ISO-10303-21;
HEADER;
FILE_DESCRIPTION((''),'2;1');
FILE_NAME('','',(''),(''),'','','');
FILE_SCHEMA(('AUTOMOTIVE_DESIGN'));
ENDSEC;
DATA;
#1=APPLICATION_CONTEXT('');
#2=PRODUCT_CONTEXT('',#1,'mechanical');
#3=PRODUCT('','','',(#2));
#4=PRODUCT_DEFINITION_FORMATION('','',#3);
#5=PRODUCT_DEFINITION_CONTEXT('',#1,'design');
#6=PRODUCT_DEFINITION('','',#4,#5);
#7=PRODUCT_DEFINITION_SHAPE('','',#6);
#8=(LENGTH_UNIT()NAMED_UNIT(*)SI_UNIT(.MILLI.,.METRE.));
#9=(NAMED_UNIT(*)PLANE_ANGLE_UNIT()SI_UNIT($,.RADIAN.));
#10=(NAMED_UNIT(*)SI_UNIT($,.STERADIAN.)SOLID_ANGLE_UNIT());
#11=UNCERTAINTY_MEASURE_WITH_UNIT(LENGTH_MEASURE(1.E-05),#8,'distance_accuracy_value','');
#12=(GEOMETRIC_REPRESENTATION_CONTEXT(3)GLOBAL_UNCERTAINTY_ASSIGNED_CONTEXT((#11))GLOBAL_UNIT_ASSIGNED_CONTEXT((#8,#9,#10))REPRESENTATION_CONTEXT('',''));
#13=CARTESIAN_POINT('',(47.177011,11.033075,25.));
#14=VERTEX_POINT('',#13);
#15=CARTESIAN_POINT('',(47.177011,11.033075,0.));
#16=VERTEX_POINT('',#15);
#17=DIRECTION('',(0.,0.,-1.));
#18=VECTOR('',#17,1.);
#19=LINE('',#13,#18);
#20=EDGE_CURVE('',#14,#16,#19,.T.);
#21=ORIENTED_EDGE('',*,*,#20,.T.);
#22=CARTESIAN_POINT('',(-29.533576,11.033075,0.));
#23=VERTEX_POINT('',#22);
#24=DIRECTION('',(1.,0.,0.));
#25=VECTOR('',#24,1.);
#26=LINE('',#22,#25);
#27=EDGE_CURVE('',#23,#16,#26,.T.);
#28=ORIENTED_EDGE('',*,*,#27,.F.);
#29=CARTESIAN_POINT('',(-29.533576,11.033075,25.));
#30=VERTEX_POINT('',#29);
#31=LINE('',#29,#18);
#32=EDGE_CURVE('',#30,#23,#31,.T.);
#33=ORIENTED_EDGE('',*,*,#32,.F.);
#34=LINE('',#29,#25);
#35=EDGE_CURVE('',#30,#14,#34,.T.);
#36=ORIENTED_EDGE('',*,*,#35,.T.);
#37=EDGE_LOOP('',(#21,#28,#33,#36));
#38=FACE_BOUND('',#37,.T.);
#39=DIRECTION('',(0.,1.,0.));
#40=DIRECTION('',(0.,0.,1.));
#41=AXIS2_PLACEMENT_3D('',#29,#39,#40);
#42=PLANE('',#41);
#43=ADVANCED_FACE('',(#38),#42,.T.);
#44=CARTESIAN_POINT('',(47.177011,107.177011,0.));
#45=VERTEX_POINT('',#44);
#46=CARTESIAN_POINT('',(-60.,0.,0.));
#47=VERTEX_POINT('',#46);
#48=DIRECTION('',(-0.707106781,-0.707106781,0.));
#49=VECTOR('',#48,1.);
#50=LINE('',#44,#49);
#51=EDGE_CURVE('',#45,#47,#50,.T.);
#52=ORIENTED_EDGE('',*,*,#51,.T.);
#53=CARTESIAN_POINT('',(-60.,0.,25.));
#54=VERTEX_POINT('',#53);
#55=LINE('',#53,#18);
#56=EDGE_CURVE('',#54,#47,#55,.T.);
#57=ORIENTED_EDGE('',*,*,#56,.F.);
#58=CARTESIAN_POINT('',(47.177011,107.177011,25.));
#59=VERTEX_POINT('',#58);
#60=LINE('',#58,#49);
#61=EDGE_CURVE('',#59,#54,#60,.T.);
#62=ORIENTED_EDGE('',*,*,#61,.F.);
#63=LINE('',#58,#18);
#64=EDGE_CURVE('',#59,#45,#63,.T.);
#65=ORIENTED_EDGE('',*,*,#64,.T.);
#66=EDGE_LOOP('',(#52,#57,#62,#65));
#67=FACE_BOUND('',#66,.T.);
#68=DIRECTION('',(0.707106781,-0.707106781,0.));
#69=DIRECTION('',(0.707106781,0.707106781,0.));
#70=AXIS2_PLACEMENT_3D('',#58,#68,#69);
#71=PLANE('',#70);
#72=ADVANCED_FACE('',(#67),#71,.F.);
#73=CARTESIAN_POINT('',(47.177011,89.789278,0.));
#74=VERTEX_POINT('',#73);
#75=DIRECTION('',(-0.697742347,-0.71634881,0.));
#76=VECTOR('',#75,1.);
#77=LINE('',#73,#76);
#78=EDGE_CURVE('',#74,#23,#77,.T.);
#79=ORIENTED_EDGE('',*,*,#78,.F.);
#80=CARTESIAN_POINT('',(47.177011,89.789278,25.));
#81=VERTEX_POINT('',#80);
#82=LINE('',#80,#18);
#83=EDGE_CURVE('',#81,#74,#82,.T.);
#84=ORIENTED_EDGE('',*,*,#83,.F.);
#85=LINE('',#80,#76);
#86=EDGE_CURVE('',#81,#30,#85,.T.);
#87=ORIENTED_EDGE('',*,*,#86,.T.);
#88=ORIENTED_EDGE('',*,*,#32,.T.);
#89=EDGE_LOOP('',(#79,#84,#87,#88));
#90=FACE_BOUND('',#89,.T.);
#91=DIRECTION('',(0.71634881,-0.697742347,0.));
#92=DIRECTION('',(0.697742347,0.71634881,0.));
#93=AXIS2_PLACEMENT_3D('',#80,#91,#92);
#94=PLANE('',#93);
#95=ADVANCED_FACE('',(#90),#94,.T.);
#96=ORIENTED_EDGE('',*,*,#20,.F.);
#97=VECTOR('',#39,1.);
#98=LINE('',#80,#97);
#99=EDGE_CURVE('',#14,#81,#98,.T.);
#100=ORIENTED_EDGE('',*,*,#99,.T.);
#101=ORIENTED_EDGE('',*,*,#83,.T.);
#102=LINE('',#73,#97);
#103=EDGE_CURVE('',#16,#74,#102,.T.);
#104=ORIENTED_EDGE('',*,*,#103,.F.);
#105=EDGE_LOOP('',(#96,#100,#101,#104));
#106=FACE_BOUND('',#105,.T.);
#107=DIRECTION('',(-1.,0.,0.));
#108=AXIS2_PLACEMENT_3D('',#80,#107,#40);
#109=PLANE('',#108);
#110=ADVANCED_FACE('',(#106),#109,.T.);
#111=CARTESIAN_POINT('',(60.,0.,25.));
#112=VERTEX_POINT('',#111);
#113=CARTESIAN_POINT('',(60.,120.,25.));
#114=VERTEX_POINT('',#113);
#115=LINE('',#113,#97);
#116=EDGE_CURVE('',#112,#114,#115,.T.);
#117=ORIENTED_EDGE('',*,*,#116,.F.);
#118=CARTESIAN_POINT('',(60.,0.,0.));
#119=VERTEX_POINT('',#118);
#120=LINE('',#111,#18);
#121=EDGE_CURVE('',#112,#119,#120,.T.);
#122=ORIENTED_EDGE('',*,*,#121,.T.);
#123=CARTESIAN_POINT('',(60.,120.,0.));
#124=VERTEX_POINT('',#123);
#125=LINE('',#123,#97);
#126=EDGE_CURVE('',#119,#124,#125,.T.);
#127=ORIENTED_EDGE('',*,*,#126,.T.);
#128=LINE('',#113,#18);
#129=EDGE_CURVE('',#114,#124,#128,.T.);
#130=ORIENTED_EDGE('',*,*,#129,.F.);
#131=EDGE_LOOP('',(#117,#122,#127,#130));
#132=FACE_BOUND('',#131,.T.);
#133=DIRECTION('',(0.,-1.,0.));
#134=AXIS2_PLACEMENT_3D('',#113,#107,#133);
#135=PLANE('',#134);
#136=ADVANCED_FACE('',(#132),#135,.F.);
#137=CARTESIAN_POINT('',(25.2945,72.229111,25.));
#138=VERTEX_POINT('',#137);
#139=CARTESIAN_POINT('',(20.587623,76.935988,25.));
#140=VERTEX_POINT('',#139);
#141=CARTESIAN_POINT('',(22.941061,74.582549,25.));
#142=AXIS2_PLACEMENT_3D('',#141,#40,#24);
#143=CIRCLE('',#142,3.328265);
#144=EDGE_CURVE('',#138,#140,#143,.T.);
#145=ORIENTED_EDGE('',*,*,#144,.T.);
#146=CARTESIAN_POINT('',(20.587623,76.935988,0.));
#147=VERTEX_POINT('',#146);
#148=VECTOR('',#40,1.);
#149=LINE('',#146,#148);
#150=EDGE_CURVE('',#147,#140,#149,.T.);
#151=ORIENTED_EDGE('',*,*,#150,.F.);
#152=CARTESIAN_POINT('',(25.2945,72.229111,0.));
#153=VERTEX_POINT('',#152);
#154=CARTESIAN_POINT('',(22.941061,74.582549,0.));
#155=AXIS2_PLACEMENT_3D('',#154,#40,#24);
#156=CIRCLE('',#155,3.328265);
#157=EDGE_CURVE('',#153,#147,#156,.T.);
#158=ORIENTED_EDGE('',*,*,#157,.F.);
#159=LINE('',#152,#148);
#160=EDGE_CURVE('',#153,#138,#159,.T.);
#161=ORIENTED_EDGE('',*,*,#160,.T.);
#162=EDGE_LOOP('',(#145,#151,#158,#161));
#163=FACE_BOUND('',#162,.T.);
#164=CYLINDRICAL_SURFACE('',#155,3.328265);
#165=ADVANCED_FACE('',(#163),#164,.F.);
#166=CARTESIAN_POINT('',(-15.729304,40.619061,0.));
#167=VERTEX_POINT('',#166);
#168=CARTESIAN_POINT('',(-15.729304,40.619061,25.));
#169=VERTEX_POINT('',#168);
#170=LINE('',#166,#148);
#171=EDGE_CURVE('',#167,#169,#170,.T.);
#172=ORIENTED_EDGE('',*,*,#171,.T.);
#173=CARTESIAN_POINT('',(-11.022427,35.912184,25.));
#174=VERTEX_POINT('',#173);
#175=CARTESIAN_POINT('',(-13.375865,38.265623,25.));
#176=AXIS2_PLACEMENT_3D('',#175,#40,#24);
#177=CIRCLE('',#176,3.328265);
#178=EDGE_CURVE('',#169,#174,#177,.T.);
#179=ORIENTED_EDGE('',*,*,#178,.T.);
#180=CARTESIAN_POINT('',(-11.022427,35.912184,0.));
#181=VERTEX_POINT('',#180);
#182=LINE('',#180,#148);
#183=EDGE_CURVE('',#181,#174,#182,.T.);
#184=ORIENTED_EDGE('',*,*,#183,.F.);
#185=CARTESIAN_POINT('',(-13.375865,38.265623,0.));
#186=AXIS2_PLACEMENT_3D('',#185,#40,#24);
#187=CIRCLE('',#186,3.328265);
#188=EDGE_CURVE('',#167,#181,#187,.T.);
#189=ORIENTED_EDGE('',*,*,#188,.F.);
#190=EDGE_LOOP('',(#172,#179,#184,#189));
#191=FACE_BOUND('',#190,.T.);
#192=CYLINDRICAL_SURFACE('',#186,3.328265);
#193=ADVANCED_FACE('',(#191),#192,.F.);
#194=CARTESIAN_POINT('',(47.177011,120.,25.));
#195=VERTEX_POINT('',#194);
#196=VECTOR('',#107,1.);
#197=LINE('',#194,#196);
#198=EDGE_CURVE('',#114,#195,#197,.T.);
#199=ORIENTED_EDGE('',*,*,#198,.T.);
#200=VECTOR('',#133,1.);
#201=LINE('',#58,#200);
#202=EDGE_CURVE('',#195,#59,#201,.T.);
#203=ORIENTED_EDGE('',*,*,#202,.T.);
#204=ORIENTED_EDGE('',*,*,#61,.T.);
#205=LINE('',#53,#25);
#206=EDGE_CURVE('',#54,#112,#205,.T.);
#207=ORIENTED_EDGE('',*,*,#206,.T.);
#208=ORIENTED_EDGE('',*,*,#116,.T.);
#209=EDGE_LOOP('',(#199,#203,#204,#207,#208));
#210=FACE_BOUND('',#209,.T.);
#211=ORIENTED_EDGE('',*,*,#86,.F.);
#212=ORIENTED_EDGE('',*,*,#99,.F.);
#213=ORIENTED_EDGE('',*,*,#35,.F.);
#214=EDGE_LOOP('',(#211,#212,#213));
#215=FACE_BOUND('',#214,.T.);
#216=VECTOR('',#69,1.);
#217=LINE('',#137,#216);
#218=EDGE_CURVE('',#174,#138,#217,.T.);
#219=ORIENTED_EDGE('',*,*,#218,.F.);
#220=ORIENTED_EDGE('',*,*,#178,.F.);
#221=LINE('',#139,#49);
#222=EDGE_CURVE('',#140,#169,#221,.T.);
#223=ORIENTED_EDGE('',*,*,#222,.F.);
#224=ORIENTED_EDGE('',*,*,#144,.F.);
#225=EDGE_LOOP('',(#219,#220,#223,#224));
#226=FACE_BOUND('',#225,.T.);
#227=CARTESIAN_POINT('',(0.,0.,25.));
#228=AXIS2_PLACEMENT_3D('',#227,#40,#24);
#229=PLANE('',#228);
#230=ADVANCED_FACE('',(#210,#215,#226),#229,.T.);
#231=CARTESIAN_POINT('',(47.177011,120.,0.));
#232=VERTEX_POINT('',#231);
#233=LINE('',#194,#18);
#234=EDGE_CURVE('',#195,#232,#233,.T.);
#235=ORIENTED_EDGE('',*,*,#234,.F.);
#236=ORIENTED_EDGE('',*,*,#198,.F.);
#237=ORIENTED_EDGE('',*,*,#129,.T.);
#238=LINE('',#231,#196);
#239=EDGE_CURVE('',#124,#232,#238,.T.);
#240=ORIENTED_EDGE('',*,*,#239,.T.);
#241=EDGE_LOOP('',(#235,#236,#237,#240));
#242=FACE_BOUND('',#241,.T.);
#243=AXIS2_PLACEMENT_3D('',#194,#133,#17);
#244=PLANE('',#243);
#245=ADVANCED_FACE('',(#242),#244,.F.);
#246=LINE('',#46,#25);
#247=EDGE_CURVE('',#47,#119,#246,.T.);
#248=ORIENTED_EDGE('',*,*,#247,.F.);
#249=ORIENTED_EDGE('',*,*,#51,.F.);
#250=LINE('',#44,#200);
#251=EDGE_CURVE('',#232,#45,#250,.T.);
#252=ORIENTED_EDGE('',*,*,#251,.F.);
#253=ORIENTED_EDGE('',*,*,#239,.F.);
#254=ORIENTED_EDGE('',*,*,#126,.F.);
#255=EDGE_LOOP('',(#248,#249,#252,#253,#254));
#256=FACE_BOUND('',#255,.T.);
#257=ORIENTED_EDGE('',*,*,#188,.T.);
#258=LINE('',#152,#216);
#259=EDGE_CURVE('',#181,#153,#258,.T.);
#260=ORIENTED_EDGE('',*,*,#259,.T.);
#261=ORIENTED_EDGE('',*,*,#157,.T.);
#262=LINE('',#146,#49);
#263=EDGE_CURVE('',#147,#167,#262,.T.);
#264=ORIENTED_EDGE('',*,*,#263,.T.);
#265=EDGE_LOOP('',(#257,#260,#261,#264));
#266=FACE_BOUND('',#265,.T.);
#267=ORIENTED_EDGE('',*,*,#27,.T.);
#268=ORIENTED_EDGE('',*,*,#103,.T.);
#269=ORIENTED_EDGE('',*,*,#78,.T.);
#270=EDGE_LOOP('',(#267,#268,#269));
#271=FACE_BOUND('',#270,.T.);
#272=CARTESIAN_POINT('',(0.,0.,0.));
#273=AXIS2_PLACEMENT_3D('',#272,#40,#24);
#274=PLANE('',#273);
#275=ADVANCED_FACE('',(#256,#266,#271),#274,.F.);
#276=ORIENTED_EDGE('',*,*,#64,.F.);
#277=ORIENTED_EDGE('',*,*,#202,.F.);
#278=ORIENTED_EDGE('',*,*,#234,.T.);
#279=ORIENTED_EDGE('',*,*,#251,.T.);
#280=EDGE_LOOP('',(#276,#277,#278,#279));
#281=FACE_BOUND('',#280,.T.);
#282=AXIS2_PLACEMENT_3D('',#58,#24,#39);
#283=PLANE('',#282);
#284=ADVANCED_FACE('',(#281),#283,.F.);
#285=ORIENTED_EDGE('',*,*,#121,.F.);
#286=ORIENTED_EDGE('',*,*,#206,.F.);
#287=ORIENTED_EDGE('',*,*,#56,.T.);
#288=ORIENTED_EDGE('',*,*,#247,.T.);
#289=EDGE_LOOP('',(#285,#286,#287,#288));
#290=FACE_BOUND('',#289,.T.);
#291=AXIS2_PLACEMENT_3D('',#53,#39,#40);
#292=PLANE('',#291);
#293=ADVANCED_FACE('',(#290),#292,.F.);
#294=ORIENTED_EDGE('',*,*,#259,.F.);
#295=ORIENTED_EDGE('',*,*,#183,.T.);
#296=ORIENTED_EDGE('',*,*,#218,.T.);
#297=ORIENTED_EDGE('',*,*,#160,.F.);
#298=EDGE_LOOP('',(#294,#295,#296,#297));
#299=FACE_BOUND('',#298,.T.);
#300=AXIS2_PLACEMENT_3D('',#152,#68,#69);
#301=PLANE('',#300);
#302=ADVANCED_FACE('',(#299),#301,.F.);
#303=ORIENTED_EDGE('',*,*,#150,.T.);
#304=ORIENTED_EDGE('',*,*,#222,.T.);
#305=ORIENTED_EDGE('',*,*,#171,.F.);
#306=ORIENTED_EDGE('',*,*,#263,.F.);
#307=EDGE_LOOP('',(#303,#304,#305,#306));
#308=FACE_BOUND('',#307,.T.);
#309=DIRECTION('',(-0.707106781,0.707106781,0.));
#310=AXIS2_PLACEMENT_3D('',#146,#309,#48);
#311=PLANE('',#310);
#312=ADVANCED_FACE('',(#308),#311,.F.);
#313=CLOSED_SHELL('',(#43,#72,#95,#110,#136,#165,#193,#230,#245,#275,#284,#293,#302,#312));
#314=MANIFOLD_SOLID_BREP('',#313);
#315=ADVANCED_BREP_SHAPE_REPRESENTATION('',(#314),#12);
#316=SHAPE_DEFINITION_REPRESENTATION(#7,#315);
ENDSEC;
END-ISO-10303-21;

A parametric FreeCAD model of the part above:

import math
import FreeCAD as App
import Part
import Sketcher
Q = App.Units.Quantity

doc = App.newDocument("Part")
body = doc.addObject("PartDesign::Body", "Body")

# Sketch on XY plane
sketch1 = body.newObject("Sketcher::SketchObject", "Sketch")
sketch1.AttachmentSupport = (doc.getObject("XY_Plane"), [""])
sketch1.MapMode = "FlatFace"
sketch1.addGeometry(Part.LineSegment(App.Vector(47, 107, 0), App.Vector(-60, 0, 0)), False)
sketch1.addGeometry(Part.LineSegment(App.Vector(-60, 0, 0), App.Vector(60, 0, 0)), False)
sketch1.addGeometry(Part.LineSegment(App.Vector(60, 0, 0), App.Vector(60, 120, 0)), False)
sketch1.addGeometry(Part.LineSegment(App.Vector(60, 120, 0), App.Vector(47, 120, 0)), False)
sketch1.addGeometry(Part.LineSegment(App.Vector(47, 120, 0), App.Vector(47, 107, 0)), False)
sketch1.addGeometry(Part.LineSegment(App.Vector(-30, 11, 0), App.Vector(47, 90, 0)), False)
sketch1.addGeometry(Part.LineSegment(App.Vector(47, 90, 0), App.Vector(47, 11, 0)), False)
sketch1.addGeometry(Part.LineSegment(App.Vector(47, 11, 0), App.Vector(-30, 11, 0)), False)
sketch1.addConstraint(Sketcher.Constraint("Coincident", 0, 2, 1, 1))
sketch1.addConstraint(Sketcher.Constraint("Coincident", 1, 2, 2, 1))
sketch1.addConstraint(Sketcher.Constraint("Coincident", 2, 2, 3, 1))
sketch1.addConstraint(Sketcher.Constraint("Coincident", 3, 2, 4, 1))
sketch1.addConstraint(Sketcher.Constraint("Coincident", 4, 2, 0, 1))
sketch1.addConstraint(Sketcher.Constraint("Coincident", 5, 2, 6, 1))
sketch1.addConstraint(Sketcher.Constraint("Coincident", 6, 2, 7, 1))
sketch1.addConstraint(Sketcher.Constraint("Coincident", 7, 2, 5, 1))
sketch1.addConstraint(Sketcher.Constraint("Horizontal", 1))
sketch1.addConstraint(Sketcher.Constraint("Vertical", 2))
sketch1.addConstraint(Sketcher.Constraint("Horizontal", 3))
sketch1.addConstraint(Sketcher.Constraint("Vertical", 4))
sketch1.addConstraint(Sketcher.Constraint("Vertical", 6))
sketch1.addConstraint(Sketcher.Constraint("Horizontal", 7))
sketch1.addConstraint(Sketcher.Constraint("Symmetric", 0, 2, 1, 2, -1, 1))
sketch1.addConstraint(Sketcher.Constraint("Vertical", 4, 2, 5, 2))
sketch1.addConstraint(Sketcher.Constraint("Equal", 1, 2))
sketch1.addConstraint(Sketcher.Constraint("Equal", 3, 4))
sketch1.addConstraint(Sketcher.Constraint("DistanceX", 1, 1, 1, 2, Q("120 mm")))
sketch1.addConstraint(Sketcher.Constraint("DistanceX", 3, 2, 3, 1, Q("12.822989 mm")))
sketch1.addConstraint(Sketcher.Constraint("DistanceX", 7, 2, 7, 1, Q("76.710587 mm")))
sketch1.addConstraint(Sketcher.Constraint("DistanceY", 6, 2, 6, 1, Q("78.756203 mm")))
sketch1.addConstraint(Sketcher.Constraint("DistanceY", -1, 1, 5, 2, Q("89.789278 mm")))
pad1 = body.newObject("PartDesign::Pad", "Pad")
pad1.Profile = sketch1
pad1.Length = 25

# Sketch on XY plane
sketch2 = body.newObject("Sketcher::SketchObject", "Sketch001")
sketch2.AttachmentSupport = (doc.getObject("XY_Plane"), [""])
sketch2.MapMode = "FlatFace"
sketch2.AttachmentOffset = App.Placement(App.Vector(0, 0, 25), App.Rotation())
sketch2.addGeometry(Part.LineSegment(App.Vector(-11, 35.9, 0), App.Vector(25.3, 72.2, 0)), False)
sketch2.addGeometry(Part.ArcOfCircle(Part.Circle(App.Vector(22.9, 74.6, 0), App.Vector(0, 0, 1), 3.3), math.radians(-45), math.radians(135)), False)
sketch2.addGeometry(Part.LineSegment(App.Vector(20.6, 76.9, 0), App.Vector(-15.7, 40.6, 0)), False)
sketch2.addGeometry(Part.ArcOfCircle(Part.Circle(App.Vector(-13.4, 38.3, 0), App.Vector(0, 0, 1), 3.3), math.radians(135), math.radians(315)), False)
sketch2.addConstraint(Sketcher.Constraint("Tangent", 0, 2, 1, 1))
sketch2.addConstraint(Sketcher.Constraint("Tangent", 1, 2, 2, 1))
sketch2.addConstraint(Sketcher.Constraint("Tangent", 2, 2, 3, 1))
sketch2.addConstraint(Sketcher.Constraint("Tangent", 3, 2, 0, 1))
sketch2.addConstraint(Sketcher.Constraint("Equal", 1, 3))
sketch2.addConstraint(Sketcher.Constraint("Angle", 0, Q("45 deg")))
sketch2.addConstraint(Sketcher.Constraint("Radius", 1, Q("3.328265 mm")))
sketch2.addConstraint(Sketcher.Constraint("DistanceX", -1, 1, 0, 2, Q("25.2945 mm")))
sketch2.addConstraint(Sketcher.Constraint("Distance", 0, Q("51.359891 mm")))
sketch2.addConstraint(Sketcher.Constraint("DistanceY", -1, 1, 1, 3, Q("74.582549 mm")))
pocket1 = body.newObject("PartDesign::Pocket", "Pocket")
pocket1.Profile = sketch2
pocket1.Length = 25

doc.recompute()
